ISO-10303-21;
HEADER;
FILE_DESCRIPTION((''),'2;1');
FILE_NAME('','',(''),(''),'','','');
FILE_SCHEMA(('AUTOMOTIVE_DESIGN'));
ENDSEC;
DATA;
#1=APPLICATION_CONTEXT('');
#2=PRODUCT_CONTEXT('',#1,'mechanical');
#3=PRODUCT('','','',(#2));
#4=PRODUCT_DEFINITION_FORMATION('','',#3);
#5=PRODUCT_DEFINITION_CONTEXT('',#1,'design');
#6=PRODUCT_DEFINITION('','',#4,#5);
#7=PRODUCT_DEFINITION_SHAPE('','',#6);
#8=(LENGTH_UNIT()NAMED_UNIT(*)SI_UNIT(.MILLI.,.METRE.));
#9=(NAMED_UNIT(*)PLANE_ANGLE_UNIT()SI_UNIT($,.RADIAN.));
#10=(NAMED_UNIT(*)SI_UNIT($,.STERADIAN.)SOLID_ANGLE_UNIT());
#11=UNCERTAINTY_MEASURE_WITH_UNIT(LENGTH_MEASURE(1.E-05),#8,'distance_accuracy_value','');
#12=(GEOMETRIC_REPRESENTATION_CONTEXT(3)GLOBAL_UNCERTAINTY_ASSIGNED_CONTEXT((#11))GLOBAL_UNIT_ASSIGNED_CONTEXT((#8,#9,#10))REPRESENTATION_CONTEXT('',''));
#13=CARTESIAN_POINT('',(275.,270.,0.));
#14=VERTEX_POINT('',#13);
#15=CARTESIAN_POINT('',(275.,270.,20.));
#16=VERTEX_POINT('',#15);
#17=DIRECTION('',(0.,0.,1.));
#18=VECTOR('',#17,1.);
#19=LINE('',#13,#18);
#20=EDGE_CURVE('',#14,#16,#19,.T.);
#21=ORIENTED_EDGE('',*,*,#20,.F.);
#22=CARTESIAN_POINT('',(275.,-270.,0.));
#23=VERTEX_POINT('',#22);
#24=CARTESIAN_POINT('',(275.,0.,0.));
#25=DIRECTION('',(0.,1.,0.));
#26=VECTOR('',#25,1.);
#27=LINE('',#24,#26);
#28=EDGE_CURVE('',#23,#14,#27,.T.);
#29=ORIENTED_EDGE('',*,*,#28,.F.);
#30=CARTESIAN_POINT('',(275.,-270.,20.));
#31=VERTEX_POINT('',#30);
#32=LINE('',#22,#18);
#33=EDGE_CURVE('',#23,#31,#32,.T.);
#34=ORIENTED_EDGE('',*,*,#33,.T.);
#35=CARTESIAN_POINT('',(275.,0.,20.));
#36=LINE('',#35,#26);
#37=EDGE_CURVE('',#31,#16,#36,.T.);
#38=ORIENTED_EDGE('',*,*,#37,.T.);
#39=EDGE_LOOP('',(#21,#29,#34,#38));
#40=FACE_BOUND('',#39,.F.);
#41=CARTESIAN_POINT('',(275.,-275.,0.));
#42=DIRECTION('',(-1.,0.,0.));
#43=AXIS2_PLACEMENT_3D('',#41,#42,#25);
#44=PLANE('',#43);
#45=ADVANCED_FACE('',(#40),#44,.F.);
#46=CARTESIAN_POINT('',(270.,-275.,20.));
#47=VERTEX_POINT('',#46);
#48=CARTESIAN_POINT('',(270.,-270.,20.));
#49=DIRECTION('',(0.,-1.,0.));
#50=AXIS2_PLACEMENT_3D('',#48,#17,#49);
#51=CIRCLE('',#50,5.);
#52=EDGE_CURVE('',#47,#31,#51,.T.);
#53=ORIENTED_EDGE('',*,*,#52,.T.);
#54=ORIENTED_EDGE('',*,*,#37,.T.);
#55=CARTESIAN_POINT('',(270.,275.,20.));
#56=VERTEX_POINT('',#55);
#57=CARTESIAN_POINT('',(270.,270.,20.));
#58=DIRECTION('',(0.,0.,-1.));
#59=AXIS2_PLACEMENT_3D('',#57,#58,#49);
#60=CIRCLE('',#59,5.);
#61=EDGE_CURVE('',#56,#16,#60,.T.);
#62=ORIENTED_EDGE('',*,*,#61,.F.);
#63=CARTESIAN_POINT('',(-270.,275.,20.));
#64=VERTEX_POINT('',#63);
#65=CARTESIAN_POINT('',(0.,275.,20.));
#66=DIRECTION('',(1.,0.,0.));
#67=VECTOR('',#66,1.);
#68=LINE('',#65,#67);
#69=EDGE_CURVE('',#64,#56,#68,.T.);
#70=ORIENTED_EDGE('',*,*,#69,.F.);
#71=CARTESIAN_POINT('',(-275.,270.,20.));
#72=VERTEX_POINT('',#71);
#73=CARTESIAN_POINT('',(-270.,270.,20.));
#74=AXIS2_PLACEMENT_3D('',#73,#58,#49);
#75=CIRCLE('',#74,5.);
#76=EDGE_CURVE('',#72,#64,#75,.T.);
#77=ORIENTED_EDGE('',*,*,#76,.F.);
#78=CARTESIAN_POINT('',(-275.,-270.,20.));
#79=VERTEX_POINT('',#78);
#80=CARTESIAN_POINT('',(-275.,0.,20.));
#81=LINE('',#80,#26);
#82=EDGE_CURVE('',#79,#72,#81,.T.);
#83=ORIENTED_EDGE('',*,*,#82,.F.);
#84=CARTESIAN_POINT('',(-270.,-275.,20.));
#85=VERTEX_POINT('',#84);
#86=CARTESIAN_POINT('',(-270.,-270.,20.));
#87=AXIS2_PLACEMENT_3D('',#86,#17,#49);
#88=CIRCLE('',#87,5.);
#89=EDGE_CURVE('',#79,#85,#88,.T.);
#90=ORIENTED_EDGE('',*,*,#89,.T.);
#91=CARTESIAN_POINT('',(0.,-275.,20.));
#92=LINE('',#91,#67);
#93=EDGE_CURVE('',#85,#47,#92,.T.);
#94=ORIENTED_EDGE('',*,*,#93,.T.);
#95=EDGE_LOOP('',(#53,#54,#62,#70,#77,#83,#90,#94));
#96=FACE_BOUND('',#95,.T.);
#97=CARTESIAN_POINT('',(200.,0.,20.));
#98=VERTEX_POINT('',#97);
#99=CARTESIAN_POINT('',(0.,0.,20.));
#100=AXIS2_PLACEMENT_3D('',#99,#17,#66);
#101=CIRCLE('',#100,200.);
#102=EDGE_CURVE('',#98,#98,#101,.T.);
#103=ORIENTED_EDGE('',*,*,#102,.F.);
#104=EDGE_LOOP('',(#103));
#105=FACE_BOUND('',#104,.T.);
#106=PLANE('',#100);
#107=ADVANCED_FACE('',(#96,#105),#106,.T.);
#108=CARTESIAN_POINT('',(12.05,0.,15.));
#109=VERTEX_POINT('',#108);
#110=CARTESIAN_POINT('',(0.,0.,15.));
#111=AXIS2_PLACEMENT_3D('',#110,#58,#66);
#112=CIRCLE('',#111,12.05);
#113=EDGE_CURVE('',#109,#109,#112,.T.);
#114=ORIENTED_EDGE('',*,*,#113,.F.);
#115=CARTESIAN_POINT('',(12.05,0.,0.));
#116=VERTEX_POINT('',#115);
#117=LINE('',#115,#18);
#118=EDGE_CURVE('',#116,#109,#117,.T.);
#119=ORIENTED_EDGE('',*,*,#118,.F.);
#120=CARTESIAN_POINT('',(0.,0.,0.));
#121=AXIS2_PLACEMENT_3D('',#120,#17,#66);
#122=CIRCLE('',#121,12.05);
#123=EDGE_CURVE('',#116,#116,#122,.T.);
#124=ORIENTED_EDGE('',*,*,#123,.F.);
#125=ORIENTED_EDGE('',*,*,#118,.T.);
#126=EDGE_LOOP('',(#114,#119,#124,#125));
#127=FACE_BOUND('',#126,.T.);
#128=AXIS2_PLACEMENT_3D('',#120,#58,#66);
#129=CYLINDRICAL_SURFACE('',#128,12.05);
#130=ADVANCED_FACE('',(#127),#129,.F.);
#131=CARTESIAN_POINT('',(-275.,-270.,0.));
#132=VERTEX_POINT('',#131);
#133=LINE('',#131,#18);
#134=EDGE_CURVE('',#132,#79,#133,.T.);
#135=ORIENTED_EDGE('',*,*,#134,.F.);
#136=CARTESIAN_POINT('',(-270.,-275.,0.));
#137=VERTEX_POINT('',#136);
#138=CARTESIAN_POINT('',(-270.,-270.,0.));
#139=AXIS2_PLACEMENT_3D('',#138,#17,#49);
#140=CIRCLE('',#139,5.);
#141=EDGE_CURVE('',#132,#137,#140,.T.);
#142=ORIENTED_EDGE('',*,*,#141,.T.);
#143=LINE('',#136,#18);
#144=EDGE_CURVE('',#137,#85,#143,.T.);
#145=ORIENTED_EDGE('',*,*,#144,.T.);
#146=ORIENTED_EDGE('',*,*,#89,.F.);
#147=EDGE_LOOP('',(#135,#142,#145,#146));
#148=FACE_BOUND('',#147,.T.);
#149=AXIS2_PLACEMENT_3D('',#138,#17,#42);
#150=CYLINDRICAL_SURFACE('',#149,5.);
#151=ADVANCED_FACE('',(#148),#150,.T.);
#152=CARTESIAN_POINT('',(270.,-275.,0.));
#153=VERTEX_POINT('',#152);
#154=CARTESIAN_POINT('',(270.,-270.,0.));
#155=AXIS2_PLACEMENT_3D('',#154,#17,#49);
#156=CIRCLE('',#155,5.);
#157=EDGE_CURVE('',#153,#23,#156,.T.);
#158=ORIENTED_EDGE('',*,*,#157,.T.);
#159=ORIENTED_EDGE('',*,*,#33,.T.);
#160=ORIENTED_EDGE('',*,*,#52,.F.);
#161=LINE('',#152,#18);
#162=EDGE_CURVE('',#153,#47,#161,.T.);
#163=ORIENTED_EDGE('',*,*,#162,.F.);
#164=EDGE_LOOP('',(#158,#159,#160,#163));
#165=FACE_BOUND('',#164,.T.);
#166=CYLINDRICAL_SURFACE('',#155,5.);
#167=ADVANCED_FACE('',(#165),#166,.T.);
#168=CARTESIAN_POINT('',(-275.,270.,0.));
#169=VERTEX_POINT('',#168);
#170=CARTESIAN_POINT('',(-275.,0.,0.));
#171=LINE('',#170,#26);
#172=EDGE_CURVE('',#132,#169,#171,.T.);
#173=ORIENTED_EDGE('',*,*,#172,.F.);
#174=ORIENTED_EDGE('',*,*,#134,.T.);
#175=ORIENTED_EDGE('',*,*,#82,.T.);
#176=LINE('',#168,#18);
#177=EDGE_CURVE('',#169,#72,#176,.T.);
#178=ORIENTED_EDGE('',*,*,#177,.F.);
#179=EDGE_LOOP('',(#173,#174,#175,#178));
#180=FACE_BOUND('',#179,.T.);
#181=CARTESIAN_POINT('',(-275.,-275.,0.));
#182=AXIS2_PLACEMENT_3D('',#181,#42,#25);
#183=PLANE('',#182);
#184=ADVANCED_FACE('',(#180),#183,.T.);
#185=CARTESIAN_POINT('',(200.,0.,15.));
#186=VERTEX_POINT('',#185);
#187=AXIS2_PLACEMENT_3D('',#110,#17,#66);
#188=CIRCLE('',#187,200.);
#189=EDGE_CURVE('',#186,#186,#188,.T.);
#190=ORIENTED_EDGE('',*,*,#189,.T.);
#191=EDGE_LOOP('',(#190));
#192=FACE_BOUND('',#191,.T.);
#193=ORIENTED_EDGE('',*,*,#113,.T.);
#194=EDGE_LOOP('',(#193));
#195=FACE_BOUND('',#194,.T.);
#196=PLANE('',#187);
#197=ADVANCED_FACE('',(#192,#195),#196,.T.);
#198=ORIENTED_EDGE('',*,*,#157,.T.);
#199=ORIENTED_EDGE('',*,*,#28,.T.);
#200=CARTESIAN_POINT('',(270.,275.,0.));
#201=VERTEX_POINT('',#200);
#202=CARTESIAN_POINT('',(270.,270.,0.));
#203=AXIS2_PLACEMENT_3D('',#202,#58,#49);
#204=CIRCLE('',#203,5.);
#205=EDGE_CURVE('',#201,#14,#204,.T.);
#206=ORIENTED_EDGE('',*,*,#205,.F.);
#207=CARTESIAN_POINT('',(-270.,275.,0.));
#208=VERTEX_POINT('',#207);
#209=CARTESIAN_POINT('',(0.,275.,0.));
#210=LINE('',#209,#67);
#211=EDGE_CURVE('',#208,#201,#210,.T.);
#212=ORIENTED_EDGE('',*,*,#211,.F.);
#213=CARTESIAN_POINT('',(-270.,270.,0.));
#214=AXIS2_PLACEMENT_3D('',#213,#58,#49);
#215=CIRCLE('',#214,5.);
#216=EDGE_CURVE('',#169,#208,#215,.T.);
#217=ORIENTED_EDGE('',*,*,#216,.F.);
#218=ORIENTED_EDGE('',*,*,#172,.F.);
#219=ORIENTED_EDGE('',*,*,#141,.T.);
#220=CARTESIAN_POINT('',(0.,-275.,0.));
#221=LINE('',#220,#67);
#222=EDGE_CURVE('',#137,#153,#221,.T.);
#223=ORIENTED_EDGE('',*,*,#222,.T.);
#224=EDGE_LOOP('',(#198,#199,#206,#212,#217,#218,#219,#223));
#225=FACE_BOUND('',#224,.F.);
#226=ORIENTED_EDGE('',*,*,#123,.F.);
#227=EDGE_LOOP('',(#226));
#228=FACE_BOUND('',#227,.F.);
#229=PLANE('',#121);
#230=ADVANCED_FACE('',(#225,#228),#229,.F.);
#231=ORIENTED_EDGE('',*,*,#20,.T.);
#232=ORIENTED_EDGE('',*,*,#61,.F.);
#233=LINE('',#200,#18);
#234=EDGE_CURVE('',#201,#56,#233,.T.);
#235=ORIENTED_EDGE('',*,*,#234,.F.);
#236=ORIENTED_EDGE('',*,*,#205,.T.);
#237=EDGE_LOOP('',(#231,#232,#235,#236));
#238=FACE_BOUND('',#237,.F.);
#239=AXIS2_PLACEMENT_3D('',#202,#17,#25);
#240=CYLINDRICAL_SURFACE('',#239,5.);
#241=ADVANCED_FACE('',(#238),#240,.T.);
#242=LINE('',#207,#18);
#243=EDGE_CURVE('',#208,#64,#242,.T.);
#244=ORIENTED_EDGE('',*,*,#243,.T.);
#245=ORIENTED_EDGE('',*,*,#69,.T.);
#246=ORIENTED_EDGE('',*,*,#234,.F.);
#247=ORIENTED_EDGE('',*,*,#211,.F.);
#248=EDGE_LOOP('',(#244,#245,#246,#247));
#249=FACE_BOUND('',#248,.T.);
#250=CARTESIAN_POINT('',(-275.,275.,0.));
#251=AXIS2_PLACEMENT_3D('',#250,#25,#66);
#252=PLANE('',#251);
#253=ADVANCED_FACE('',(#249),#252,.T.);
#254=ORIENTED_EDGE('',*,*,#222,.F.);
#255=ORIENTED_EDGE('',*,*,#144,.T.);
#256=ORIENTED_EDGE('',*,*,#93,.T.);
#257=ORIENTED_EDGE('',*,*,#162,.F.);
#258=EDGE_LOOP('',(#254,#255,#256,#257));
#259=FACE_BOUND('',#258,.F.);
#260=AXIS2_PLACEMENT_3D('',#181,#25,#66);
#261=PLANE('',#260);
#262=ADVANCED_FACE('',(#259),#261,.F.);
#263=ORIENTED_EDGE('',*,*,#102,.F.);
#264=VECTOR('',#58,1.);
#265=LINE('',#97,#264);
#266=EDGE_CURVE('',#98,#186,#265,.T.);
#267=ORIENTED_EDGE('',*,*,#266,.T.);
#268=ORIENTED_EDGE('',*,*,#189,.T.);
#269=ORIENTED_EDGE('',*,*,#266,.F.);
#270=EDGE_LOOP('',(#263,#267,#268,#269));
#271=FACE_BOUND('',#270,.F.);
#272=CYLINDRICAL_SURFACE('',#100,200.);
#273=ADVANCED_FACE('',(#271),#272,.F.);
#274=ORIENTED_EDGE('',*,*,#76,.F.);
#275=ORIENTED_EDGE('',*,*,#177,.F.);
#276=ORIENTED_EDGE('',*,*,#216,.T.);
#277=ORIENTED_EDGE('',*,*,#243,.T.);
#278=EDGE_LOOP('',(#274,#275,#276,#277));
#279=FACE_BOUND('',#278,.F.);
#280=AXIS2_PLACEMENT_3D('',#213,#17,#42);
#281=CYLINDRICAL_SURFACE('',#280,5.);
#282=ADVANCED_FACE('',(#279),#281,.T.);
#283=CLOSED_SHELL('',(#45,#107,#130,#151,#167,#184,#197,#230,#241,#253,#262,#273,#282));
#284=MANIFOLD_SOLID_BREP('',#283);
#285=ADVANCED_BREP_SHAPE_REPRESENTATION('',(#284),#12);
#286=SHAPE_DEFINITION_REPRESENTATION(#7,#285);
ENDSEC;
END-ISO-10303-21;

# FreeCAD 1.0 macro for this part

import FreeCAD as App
import Part
import Sketcher
Q = App.Units.Quantity


def edges_at(feature, points):
    """Names of the edges that pass closest to the given points."""
    edges = feature.Shape.Edges
    near = lambda p: min(range(len(edges)), key=lambda i: edges[i].distToShape(Part.Vertex(*p))[0])
    return sorted({f"Edge{near(p) + 1}" for p in points})

doc = App.newDocument("Part")
params = doc.addObject("Spreadsheet::Sheet", "Params")
for row, (alias, value) in enumerate([
    ("sketch1_diameter", "24.1 mm"),
    ("sketch1_width", "550 mm"),
    ("pad1_length", "20 mm"),
    ("fillet_radius", "5 mm"),
    ("sketch2_diameter", "400 mm"),
    ("pocket1_length", "5 mm"),
], start=1):
    params.set(f"A{row}", alias)
    params.set(f"B{row}", "=" + value)
    params.setAlias(f"B{row}", alias)

body = doc.addObject("PartDesign::Body", "Body")

sketch1 = body.newObject("Sketcher::SketchObject", "Sketch")
sketch1.AttachmentSupport = (doc.getObject("XY_Plane"), [""])
sketch1.MapMode = "FlatFace"
sketch1.addGeometry([
    Part.LineSegment(App.Vector(-275, 275, 0), App.Vector(-275, -275, 0)),
    Part.LineSegment(App.Vector(-275, -275, 0), App.Vector(275, -275, 0)),
    Part.LineSegment(App.Vector(275, -275, 0), App.Vector(275, 275, 0)),
    Part.LineSegment(App.Vector(275, 275, 0), App.Vector(-275, 275, 0)),
    Part.Circle(App.Vector(0, 0, 0), App.Vector(0, 0, 1), 12.05),
], False)
sketch1.addConstraint([
    Sketcher.Constraint("Coincident", 0, 2, 1, 1),
    Sketcher.Constraint("Coincident", 1, 2, 2, 1),
    Sketcher.Constraint("Coincident", 2, 2, 3, 1),
    Sketcher.Constraint("Coincident", 3, 2, 0, 1),
    Sketcher.Constraint("Vertical", 0),
    Sketcher.Constraint("Horizontal", 1),
    Sketcher.Constraint("Vertical", 2),
    Sketcher.Constraint("Horizontal", 3),
    Sketcher.Constraint("Coincident", 4, 3, -1, 1),
    Sketcher.Constraint("Symmetric", 0, 2, 2, 2, -1, 1),
    Sketcher.Constraint("Equal", 3, 0),
    Sketcher.Constraint("Diameter", 4, Q("24.1 mm")),
    Sketcher.Constraint("DistanceX", 1, 1, 1, 2, Q("550 mm")),
])
sketch1.setExpression("Constraints[11]", "Params.sketch1_diameter")
sketch1.setExpression("Constraints[12]", "Params.sketch1_width")
pad1 = body.newObject("PartDesign::Pad", "Pad")
pad1.Profile = sketch1
pad1.setExpression("Length", "Params.pad1_length")
doc.recompute()

fillet = body.newObject("PartDesign::Fillet", "Fillet")
fillet.Base = (pad1, edges_at(pad1, [
    (-275, -275, 10),
    (275, -275, 10),
    (275, 275, 10),
    (-275, 275, 10),
]))
fillet.setExpression("Radius", "Params.fillet_radius")

sketch2 = body.newObject("Sketcher::SketchObject", "Sketch001")
sketch2.AttachmentSupport = (doc.getObject("XY_Plane"), [""])
sketch2.MapMode = "FlatFace"
sketch2.AttachmentOffset = App.Placement(App.Vector(0, 0, 20), App.Rotation())
sketch2.addGeometry(Part.Circle(App.Vector(0, 0, 0), App.Vector(0, 0, 1), 200), False)
sketch2.addConstraint([
    Sketcher.Constraint("Coincident", 0, 3, -1, 1),
    Sketcher.Constraint("Diameter", 0, Q("400 mm")),
])
sketch2.setExpression("Constraints[1]", "Params.sketch2_diameter")
pocket1 = body.newObject("PartDesign::Pocket", "Pocket")
pocket1.Profile = sketch2
pocket1.setExpression("Length", "Params.pocket1_length")

doc.recompute()
